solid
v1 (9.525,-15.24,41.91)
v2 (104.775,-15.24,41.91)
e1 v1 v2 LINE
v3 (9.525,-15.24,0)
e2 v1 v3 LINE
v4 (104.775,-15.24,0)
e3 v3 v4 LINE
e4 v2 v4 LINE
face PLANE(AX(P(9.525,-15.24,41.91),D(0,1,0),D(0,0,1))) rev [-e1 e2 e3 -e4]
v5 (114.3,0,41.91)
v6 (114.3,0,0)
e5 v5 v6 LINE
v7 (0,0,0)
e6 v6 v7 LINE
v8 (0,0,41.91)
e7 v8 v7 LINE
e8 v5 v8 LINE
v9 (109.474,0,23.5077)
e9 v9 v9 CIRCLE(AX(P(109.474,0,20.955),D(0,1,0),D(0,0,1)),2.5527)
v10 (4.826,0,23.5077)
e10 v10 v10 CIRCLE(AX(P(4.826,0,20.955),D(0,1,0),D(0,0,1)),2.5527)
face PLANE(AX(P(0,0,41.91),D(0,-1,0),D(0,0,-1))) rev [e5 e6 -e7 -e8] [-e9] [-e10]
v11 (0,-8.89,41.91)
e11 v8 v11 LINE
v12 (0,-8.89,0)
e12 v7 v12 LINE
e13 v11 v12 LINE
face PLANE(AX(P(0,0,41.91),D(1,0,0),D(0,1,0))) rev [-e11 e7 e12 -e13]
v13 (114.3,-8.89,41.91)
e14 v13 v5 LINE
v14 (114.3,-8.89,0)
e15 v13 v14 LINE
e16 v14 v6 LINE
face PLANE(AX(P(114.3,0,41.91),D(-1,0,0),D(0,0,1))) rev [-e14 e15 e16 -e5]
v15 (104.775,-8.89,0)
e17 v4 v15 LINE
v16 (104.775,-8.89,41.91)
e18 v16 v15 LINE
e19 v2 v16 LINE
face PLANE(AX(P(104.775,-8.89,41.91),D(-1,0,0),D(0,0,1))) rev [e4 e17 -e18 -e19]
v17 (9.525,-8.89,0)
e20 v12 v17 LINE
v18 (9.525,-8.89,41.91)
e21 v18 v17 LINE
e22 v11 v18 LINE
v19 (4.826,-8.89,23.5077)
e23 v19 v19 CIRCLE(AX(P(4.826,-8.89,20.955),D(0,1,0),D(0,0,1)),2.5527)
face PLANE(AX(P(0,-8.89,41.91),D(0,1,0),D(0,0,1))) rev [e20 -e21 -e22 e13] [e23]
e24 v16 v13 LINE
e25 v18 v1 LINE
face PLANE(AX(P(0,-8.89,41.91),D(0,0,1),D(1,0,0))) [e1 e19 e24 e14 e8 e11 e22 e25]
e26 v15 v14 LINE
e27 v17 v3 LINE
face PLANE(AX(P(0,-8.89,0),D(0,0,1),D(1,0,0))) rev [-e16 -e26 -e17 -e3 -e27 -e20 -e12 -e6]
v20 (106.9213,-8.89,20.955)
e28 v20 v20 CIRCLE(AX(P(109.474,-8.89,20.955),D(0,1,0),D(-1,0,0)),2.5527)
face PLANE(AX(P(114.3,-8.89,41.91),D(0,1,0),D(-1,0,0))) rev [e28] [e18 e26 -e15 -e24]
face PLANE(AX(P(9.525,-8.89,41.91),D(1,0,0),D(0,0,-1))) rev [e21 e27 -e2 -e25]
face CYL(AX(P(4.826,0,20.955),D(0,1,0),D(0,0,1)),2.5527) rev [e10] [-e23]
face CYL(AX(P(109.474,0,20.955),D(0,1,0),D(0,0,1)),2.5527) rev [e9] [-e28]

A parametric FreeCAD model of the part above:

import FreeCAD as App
import Part
import Sketcher
Q = App.Units.Quantity


def add_polygon(sketch, points):
    """Adds a closed chain of lines whose ends are joined by coincident constraints."""
    first, n = sketch.GeometryCount, len(points)
    for a, b in zip(points, points[1:] + points[:1]):
        sketch.addGeometry(Part.LineSegment(App.Vector(*a, 0), App.Vector(*b, 0)), False)
    for i in range(n):
        sketch.addConstraint(Sketcher.Constraint("Coincident", first + i, 2, first + (i + 1) % n, 1))

doc = App.newDocument("Part")
body = doc.addObject("PartDesign::Body", "Body")

# Sketch on XY plane
sketch1 = doc.addObject("Sketcher::SketchObject", "Sketch")
body.addObject(sketch1)
sketch1.AttachmentSupport = (doc.XY_Plane, [""])
sketch1.MapMode = "FlatFace"
add_polygon(sketch1, [(114, 0), (0, 0), (0, -9), (10, -9), (10, -15), (105, -15), (105, -9), (114, -9)])  # lines 0-7
sketch1.addConstraint([
    Sketcher.Constraint("Horizontal", 0),
    Sketcher.Constraint("Vertical", 1),
    Sketcher.Constraint("Horizontal", 2),
    Sketcher.Constraint("Vertical", 3),
    Sketcher.Constraint("Horizontal", 4),
    Sketcher.Constraint("Vertical", 5),
    Sketcher.Constraint("Horizontal", 6),
    Sketcher.Constraint("Vertical", 7),
    Sketcher.Constraint("Coincident", 0, 2, -1, 1),
    Sketcher.Constraint("Horizontal", 2, 2, 5, 2),
    Sketcher.Constraint("Equal", 2, 6),
    Sketcher.Constraint("DistanceX", 0, 2, 0, 1, Q("4.5 in")),
    Sketcher.Constraint("DistanceX", 4, 1, 4, 2, Q("3.75 in")),
    Sketcher.Constraint("DistanceY", 1, 2, 1, 1, Q("0.35 in")),
    Sketcher.Constraint("DistanceY", 3, 2, 3, 1, Q("0.25 in")),
])
pad1 = doc.addObject("PartDesign::Pad", "Pad")
body.addObject(pad1)
pad1.Profile = sketch1
pad1.Length = Q("1.65 in")

# Sketch on XZ plane
sketch2 = doc.addObject("Sketcher::SketchObject", "Sketch001")
body.addObject(sketch2)
sketch2.AttachmentSupport = (doc.XZ_Plane, [""])
sketch2.MapMode = "FlatFace"
sketch2.addGeometry([
    Part.Circle(App.Vector(4.8, 21, 0), App.Vector(0, 0, 1), 2.6),
    Part.Circle(App.Vector(109.5, 21, 0), App.Vector(0, 0, 1), 2.6),
], False)
sketch2.addConstraint([
    Sketcher.Constraint("Equal", 0, 1),
    Sketcher.Constraint("Horizontal", 0, 3, 1, 3),
    Sketcher.Constraint("Diameter", 0, Q("0.201 in")),
    Sketcher.Constraint("DistanceX", -1, 1, 0, 3, Q("0.19 in")),
    Sketcher.Constraint("DistanceX", -1, 1, 1, 3, Q("4.31 in")),
    Sketcher.Constraint("DistanceY", -1, 1, 0, 3, Q("0.825 in")),
])
doc.recompute()
hole = doc.addObject("PartDesign::Hole", "Hole")
body.addObject(hole)
hole.Profile = sketch2
hole.ThreadType = "None"
hole.Diameter = Q("0.201 in")
hole.DepthType = "ThroughAll"
hole.Reversed = True

doc.recompute()
